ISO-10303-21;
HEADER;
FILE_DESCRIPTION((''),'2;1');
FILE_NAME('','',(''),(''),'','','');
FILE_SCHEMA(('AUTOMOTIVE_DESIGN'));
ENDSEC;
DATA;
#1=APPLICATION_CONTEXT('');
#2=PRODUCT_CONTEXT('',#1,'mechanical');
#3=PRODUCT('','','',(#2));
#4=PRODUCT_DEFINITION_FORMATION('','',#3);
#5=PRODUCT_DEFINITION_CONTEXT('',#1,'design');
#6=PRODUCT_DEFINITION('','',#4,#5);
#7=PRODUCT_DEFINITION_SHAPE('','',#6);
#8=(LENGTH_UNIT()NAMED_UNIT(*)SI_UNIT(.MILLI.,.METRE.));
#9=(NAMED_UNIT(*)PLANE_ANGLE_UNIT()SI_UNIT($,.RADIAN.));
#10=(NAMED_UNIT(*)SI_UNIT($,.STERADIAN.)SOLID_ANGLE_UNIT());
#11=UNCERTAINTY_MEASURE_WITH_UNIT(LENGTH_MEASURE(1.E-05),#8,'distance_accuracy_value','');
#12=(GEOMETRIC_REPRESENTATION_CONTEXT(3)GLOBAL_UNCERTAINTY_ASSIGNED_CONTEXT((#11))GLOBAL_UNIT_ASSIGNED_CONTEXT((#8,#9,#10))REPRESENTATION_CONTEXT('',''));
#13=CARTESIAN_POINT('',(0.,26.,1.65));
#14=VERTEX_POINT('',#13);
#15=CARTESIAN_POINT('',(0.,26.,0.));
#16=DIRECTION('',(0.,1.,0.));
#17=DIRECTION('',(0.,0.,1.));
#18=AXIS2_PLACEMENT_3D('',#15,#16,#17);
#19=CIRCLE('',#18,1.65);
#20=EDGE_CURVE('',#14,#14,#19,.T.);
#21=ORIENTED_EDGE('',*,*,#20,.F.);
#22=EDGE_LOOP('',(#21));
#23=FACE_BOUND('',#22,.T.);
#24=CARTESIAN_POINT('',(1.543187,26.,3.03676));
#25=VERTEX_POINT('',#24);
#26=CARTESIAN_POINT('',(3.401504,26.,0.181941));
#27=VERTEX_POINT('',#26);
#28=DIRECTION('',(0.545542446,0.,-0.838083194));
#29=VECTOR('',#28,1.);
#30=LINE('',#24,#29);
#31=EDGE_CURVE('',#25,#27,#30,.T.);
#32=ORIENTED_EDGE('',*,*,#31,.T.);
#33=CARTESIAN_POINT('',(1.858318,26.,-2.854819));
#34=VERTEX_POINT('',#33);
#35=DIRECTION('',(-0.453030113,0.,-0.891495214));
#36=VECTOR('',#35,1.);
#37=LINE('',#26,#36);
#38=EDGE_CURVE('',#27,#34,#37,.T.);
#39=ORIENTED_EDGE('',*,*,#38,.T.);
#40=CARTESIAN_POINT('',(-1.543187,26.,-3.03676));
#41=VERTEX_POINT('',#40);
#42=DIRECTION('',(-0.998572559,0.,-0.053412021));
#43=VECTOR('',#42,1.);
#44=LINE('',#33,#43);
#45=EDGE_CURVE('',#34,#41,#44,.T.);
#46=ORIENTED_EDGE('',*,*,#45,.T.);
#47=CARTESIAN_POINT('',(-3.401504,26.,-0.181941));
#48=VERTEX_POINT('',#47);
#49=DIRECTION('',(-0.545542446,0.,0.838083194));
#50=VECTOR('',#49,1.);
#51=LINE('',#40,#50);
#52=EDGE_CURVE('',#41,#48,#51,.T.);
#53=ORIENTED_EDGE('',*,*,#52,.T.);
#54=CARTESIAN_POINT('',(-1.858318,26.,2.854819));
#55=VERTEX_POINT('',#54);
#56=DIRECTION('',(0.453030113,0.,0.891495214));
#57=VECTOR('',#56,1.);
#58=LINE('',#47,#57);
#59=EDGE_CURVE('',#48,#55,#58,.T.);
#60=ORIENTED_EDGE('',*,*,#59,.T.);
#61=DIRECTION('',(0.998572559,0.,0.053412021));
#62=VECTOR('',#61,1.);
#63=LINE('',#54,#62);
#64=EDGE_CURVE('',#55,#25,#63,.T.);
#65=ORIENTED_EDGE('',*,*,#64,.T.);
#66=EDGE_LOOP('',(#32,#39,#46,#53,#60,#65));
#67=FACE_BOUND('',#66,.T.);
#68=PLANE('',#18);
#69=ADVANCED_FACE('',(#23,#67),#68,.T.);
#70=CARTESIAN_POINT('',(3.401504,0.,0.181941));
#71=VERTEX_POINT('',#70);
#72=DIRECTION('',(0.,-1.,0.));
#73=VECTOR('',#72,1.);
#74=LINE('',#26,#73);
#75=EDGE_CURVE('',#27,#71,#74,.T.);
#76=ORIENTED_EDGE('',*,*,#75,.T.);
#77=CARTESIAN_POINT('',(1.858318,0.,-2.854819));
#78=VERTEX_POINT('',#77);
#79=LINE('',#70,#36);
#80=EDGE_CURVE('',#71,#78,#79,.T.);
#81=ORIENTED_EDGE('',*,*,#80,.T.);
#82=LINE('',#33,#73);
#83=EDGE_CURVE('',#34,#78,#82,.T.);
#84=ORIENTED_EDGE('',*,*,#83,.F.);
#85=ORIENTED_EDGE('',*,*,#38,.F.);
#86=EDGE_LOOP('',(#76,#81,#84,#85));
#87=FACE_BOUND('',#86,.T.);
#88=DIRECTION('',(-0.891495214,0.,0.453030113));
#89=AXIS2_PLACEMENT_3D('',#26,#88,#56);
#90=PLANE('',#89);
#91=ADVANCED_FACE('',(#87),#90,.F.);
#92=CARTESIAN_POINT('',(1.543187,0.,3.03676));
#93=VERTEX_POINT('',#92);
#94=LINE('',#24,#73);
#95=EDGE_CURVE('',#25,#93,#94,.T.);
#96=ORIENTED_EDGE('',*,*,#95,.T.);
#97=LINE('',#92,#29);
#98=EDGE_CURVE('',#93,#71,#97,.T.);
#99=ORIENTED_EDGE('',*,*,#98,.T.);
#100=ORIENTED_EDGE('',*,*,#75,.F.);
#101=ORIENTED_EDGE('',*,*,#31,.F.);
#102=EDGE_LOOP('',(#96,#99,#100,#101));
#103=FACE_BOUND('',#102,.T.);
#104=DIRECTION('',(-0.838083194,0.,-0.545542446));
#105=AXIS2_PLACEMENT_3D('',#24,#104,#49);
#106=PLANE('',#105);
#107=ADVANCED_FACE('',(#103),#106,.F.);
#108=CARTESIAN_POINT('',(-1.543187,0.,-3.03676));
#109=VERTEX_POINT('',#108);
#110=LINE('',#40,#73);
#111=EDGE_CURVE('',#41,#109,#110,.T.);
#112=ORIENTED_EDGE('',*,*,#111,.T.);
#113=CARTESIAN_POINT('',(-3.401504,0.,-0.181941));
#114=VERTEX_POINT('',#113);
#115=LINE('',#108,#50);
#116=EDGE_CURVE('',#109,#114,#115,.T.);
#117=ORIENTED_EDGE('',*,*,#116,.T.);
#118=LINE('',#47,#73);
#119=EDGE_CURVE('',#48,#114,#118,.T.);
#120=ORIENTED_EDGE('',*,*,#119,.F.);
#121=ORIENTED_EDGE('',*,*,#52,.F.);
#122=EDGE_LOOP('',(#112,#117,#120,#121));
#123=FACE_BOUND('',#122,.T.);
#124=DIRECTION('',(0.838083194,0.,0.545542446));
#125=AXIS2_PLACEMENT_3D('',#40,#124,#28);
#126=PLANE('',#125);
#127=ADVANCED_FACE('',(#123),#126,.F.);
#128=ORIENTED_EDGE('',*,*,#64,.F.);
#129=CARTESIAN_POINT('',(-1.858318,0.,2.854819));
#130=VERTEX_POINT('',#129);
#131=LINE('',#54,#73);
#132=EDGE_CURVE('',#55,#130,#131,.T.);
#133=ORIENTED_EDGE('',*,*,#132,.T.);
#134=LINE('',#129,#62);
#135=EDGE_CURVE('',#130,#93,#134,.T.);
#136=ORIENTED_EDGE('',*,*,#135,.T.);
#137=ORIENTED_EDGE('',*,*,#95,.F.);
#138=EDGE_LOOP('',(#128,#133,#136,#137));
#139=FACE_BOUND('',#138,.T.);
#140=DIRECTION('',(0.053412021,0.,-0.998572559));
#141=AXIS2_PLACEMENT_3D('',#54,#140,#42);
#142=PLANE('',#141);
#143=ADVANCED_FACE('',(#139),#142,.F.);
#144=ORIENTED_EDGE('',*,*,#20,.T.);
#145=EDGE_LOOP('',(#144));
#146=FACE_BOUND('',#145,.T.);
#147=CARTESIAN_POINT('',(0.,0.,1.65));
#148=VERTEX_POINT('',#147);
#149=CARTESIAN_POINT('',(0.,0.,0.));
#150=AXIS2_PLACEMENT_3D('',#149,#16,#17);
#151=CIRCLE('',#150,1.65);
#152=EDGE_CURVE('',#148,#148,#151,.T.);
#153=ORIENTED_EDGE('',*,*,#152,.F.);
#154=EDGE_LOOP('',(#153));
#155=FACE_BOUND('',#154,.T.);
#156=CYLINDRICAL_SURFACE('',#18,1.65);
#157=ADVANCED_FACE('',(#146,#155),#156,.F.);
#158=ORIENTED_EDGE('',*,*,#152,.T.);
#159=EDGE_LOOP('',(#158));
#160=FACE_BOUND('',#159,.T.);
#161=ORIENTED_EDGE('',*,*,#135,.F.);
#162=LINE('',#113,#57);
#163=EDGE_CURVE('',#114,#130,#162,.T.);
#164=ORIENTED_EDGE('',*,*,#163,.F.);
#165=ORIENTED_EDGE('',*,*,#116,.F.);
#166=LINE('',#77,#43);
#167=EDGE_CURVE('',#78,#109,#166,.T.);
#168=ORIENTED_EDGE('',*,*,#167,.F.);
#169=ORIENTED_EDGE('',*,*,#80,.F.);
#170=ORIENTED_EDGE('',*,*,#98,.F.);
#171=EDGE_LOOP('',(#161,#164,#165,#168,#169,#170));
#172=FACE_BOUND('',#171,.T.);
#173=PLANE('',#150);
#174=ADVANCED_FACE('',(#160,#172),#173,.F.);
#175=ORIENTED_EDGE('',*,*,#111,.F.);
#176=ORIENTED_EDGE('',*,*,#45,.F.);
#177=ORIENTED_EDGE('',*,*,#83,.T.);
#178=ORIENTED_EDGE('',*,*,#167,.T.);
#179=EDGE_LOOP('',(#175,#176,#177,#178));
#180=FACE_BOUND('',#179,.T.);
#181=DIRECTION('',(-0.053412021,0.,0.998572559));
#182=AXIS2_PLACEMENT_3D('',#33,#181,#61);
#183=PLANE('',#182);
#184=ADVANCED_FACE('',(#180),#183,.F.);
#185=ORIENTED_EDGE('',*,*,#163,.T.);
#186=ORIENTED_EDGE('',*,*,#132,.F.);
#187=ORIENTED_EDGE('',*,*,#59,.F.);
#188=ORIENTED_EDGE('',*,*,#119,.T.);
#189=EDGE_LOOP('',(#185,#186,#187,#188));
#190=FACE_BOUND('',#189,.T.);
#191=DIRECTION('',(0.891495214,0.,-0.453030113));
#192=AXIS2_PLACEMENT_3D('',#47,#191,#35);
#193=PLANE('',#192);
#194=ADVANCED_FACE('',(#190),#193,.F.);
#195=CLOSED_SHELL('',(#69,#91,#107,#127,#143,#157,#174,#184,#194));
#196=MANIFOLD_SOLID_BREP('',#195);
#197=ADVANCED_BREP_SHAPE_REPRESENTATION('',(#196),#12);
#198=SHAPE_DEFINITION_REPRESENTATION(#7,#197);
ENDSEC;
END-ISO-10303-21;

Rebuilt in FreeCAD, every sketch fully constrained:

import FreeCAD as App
import Part
import Sketcher

V = App.Vector
Q = App.Units.Quantity

doc = App.newDocument("Part")
body = doc.addObject("PartDesign::Body", "Body")

sketch1 = doc.addObject("Sketcher::SketchObject", "Sketch")
body.addObject(sketch1)
sketch1.AttachmentSupport = (doc.XZ_Plane, [""])
sketch1.MapMode = "FlatFace"
sketch1.addGeometry(Part.LineSegment(V(3.4, 0.2, 0), V(1.9, -2.9, 0)), False)
sketch1.addGeometry(Part.LineSegment(V(1.9, -2.9, 0), V(-1.5, -3, 0)), False)
sketch1.addGeometry(Part.LineSegment(V(-1.5, -3, 0), V(-3.4, -0.2, 0)), False)
sketch1.addGeometry(Part.LineSegment(V(-3.4, -0.2, 0), V(-1.9, 2.9, 0)), False)
sketch1.addGeometry(Part.LineSegment(V(-1.9, 2.9, 0), V(1.5, 3, 0)), False)
sketch1.addGeometry(Part.LineSegment(V(1.5, 3, 0), V(3.4, 0.2, 0)), False)
sketch1.addConstraint(Sketcher.Constraint("Coincident", 0, 2, 1, 1))
sketch1.addConstraint(Sketcher.Constraint("Coincident", 1, 2, 2, 1))
sketch1.addConstraint(Sketcher.Constraint("Coincident", 2, 2, 3, 1))
sketch1.addConstraint(Sketcher.Constraint("Coincident", 3, 2, 4, 1))
sketch1.addConstraint(Sketcher.Constraint("Coincident", 4, 2, 5, 1))
sketch1.addConstraint(Sketcher.Constraint("Coincident", 5, 2, 0, 1))
sketch1.addConstraint(Sketcher.Constraint("Symmetric", 0, 2, 3, 2, -1, 1))
sketch1.addConstraint(Sketcher.Constraint("Symmetric", 1, 2, 4, 2, -1, 1))
sketch1.addConstraint(Sketcher.Constraint("Symmetric", 2, 2, 5, 2, -1, 1))
sketch1.addConstraint(Sketcher.Constraint("Equal", 0, 1))
sketch1.addConstraint(Sketcher.Constraint("Equal", 1, 2))
sketch1.addConstraint(Sketcher.Constraint("DistanceY", 2, 2, 4, 2, Q("3.2187 mm")))
sketch1.addConstraint(Sketcher.Constraint("DistanceY", 0, 2, -1, 1, Q("2.854819 mm")))
sketch1.addConstraint(Sketcher.Constraint("DistanceY", 1, 2, -1, 1, Q("3.03676 mm")))
sketch1.addConstraint(Sketcher.Constraint("DistanceX", 2, 2, 0, 2, Q("5.259822 mm")))
pad1 = doc.addObject("PartDesign::Pad", "Pad")
body.addObject(pad1)
pad1.Profile = sketch1
pad1.Length = 26
pad1.Reversed = True

sketch2 = doc.addObject("Sketcher::SketchObject", "Sketch001")
body.addObject(sketch2)
sketch2.AttachmentSupport = (doc.XZ_Plane, [""])
sketch2.MapMode = "FlatFace"
sketch2.AttachmentOffset = App.Placement(V(0, 0, -26), App.Rotation())
sketch2.addGeometry(Part.Circle(V(0, 0, 0), V(0, 0, 1), 1.6), False)
sketch2.addConstraint(Sketcher.Constraint("Coincident", 0, 3, -1, 1))
sketch2.addConstraint(Sketcher.Constraint("Diameter", 0, Q("3.3 mm")))
doc.recompute()
hole = doc.addObject("PartDesign::Hole", "Hole")
body.addObject(hole)
hole.Profile = sketch2
hole.ThreadType = "None"
hole.Diameter = 3.3
hole.DepthType = "ThroughAll"
hole.Reversed = True

doc.recompute()
